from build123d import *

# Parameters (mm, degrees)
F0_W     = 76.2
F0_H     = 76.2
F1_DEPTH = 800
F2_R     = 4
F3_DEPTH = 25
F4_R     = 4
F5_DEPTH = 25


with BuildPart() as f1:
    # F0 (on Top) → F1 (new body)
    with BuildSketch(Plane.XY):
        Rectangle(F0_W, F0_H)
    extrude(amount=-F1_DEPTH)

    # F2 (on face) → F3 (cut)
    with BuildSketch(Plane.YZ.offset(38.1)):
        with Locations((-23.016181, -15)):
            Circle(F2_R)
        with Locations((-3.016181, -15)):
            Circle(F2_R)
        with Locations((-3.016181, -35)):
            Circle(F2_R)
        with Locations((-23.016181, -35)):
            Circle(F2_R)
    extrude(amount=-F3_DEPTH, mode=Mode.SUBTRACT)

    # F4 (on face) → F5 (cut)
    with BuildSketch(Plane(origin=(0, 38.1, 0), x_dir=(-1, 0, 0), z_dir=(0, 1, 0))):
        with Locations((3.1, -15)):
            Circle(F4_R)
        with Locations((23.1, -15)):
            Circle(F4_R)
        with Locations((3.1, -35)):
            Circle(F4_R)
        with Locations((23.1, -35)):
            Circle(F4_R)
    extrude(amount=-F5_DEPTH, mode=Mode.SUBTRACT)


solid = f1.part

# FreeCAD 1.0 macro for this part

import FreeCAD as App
import Part
import Sketcher
Q = App.Units.Quantity

doc = App.newDocument("Part")
params = doc.addObject("Spreadsheet::Sheet", "Params")
for row, (alias, value) in enumerate([
    ("sketch1_width", "76.2 mm"),
    ("pad1_length", "800 mm"),
    ("sketch2_diameter", "8 mm"),
    ("pocket1_length", "25 mm"),
    ("sketch3_diameter", "8 mm"),
    ("pocket2_length", "25 mm"),
], start=1):
    params.set(f"A{row}", alias)
    params.set(f"B{row}", "=" + value)
    params.setAlias(f"B{row}", alias)

body = doc.addObject("PartDesign::Body", "Body")

# Sketch on XY plane
sketch1 = body.newObject("Sketcher::SketchObject", "Sketch")
sketch1.AttachmentSupport = (doc.getObject("XY_Plane"), [""])
sketch1.MapMode = "FlatFace"
sketch1.addGeometry([
    Part.LineSegment(App.Vector(-38, 38, 0), App.Vector(-38, -38, 0)),
    Part.LineSegment(App.Vector(-38, -38, 0), App.Vector(38, -38, 0)),
    Part.LineSegment(App.Vector(38, -38, 0), App.Vector(38, 38, 0)),
    Part.LineSegment(App.Vector(38, 38, 0), App.Vector(-38, 38, 0)),
], False)
sketch1.addConstraint([
    Sketcher.Constraint("Coincident", 0, 2, 1, 1),
    Sketcher.Constraint("Coincident", 1, 2, 2, 1),
    Sketcher.Constraint("Coincident", 2, 2, 3, 1),
    Sketcher.Constraint("Coincident", 3, 2, 0, 1),
    Sketcher.Constraint("Vertical", 0),
    Sketcher.Constraint("Horizontal", 1),
    Sketcher.Constraint("Vertical", 2),
    Sketcher.Constraint("Horizontal", 3),
    Sketcher.Constraint("Symmetric", 0, 2, 2, 2, -1, 1),
    Sketcher.Constraint("Equal", 3, 0),
    Sketcher.Constraint("DistanceX", 1, 1, 1, 2, Q("76.2 mm")),
])
sketch1.setExpression("Constraints[10]", "Params.sketch1_width")
pad1 = body.newObject("PartDesign::Pad", "Pad")
pad1.Profile = sketch1
pad1.setExpression("Length", "Params.pad1_length")
pad1.Reversed = True

# Sketch on YZ plane
sketch2 = body.newObject("Sketcher::SketchObject", "Sketch001")
sketch2.AttachmentSupport = (doc.getObject("YZ_Plane"), [""])
sketch2.MapMode = "FlatFace"
sketch2.AttachmentOffset = App.Placement(App.Vector(0, 0, 38.1), App.Rotation())
sketch2.addGeometry([
    Part.Circle(App.Vector(-23, -15, 0), App.Vector(0, 0, 1), 4),
    Part.Circle(App.Vector(-3, -15, 0), App.Vector(0, 0, 1), 4),
    Part.Circle(App.Vector(-3, -35, 0), App.Vector(0, 0, 1), 4),
    Part.Circle(App.Vector(-23, -35, 0), App.Vector(0, 0, 1), 4),
], False)
sketch2.addConstraint([
    Sketcher.Constraint("Equal", 0, 1),
    Sketcher.Constraint("Equal", 1, 2),
    Sketcher.Constraint("Equal", 2, 3),
    Sketcher.Constraint("Horizontal", 0, 3, 1, 3),
    Sketcher.Constraint("Horizontal", 2, 3, 3, 3),
    Sketcher.Constraint("Vertical", 1, 3, 2, 3),
    Sketcher.Constraint("Vertical", 0, 3, 3, 3),
    Sketcher.Constraint("Diameter", 0, Q("8 mm")),
    Sketcher.Constraint("DistanceY", 0, 3, -1, 1, Q("15 mm")),
    Sketcher.Constraint("DistanceY", 2, 3, -1, 1, Q("35 mm")),
    Sketcher.Constraint("DistanceX", 0, 3, 1, 3, Q("20 mm")),
    Sketcher.Constraint("DistanceX", 0, 3, -1, 1, Q("23.016181 mm")),
])
sketch2.setExpression("Constraints[7]", "Params.sketch2_diameter")
pocket1 = body.newObject("PartDesign::Pocket", "Pocket")
pocket1.Profile = sketch2
pocket1.setExpression("Length", "Params.pocket1_length")

# Sketch on XZ plane
sketch3 = body.newObject("Sketcher::SketchObject", "Sketch002")
sketch3.AttachmentSupport = (doc.getObject("XZ_Plane"), [""])
sketch3.MapMode = "FlatFace"
sketch3.AttachmentOffset = App.Placement(App.Vector(0, 0, -38.1), App.Rotation())
sketch3.addGeometry([
    Part.Circle(App.Vector(-3.1, -15, 0), App.Vector(0, 0, 1), 4),
    Part.Circle(App.Vector(-23.1, -15, 0), App.Vector(0, 0, 1), 4),
    Part.Circle(App.Vector(-3.1, -35, 0), App.Vector(0, 0, 1), 4),
    Part.Circle(App.Vector(-23.1, -35, 0), App.Vector(0, 0, 1), 4),
], False)
sketch3.addConstraint([
    Sketcher.Constraint("Equal", 0, 1),
    Sketcher.Constraint("Equal", 1, 2),
    Sketcher.Constraint("Equal", 2, 3),
    Sketcher.Constraint("Horizontal", 0, 3, 1, 3),
    Sketcher.Constraint("Horizontal", 2, 3, 3, 3),
    Sketcher.Constraint("Vertical", 0, 3, 2, 3),
    Sketcher.Constraint("Vertical", 1, 3, 3, 3),
    Sketcher.Constraint("Diameter", 0, Q("8 mm")),
    Sketcher.Constraint("DistanceY", 0, 3, -1, 1, Q("15 mm")),
    Sketcher.Constraint("DistanceY", 2, 3, -1, 1, Q("35 mm")),
    Sketcher.Constraint("DistanceX", 1, 3, 0, 3, Q("20 mm")),
    Sketcher.Constraint("DistanceX", 0, 3, -1, 1, Q("3.1 mm")),
])
sketch3.setExpression("Constraints[7]", "Params.sketch3_diameter")
pocket2 = body.newObject("PartDesign::Pocket", "Pocket001")
pocket2.Profile = sketch3
pocket2.setExpression("Length", "Params.pocket2_length")
pocket2.Reversed = True

doc.recompute()
